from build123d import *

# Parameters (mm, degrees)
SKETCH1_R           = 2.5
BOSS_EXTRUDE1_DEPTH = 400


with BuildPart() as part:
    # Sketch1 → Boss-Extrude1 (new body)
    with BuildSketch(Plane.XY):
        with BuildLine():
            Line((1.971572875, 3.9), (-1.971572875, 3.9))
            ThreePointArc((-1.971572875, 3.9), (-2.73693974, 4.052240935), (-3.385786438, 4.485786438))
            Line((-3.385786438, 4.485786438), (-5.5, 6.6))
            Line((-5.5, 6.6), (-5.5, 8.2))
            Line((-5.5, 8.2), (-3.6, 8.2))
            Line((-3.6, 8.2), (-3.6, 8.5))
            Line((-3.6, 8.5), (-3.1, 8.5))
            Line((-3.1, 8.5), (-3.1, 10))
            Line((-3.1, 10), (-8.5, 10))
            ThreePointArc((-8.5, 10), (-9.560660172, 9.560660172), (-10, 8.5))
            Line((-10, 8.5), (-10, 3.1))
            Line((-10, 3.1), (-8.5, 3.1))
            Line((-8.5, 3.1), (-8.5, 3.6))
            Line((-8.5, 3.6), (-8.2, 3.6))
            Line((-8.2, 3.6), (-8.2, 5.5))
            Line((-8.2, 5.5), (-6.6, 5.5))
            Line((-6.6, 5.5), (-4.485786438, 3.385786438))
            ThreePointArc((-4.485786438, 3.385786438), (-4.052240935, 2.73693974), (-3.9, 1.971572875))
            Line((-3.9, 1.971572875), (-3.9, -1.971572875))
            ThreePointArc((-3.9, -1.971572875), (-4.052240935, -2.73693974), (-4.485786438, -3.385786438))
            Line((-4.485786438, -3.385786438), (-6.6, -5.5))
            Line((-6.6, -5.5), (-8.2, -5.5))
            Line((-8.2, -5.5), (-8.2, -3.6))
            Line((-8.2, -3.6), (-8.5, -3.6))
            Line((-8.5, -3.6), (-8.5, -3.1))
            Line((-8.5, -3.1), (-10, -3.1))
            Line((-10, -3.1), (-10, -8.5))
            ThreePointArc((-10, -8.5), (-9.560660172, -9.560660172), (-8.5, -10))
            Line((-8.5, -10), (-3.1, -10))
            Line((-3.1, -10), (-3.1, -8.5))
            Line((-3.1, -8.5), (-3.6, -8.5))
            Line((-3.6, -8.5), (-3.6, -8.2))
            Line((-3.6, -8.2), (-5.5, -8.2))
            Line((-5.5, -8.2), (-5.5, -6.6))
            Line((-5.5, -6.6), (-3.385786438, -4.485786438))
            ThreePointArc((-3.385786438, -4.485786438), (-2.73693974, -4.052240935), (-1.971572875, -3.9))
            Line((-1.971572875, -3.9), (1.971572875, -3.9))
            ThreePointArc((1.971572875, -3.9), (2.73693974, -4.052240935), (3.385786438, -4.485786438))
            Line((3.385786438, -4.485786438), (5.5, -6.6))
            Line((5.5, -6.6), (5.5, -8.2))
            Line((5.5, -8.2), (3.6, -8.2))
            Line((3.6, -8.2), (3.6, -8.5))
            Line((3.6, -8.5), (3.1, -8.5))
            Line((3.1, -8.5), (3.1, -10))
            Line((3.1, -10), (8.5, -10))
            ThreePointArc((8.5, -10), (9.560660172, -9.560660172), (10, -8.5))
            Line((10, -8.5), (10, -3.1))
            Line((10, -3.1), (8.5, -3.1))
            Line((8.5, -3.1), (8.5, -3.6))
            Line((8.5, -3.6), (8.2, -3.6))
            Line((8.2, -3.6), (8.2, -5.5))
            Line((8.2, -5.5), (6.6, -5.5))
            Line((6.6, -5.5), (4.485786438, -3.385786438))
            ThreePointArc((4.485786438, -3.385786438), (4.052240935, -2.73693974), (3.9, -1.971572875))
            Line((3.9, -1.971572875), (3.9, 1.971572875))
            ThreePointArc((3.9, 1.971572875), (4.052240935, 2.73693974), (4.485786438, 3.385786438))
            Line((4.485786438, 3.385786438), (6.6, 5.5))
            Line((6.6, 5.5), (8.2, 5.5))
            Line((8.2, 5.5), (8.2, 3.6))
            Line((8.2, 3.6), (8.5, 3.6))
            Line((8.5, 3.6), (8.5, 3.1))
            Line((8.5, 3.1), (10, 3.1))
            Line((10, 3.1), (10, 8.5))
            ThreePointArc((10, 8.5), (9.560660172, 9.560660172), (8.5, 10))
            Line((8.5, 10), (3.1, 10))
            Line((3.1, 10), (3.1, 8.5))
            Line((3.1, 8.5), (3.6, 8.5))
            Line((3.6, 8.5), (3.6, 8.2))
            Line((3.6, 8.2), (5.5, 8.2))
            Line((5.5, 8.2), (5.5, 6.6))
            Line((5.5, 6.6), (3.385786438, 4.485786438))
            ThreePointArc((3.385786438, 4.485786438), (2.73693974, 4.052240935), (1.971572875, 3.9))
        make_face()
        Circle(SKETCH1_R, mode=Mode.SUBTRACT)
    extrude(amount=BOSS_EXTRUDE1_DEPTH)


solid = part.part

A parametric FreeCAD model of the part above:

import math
import FreeCAD as App
import Part
import Sketcher

V = App.Vector

doc = App.newDocument("Part")
body = doc.addObject("PartDesign::Body", "Body")

# Sketch on XY plane
sketch1 = body.newObject("Sketcher::SketchObject", "Sketch")
sketch1.AttachmentSupport = (doc.getObject("XY_Plane"), [""])
sketch1.MapMode = "FlatFace"
sketch1.addGeometry(Part.LineSegment(V(1.971573, 3.9, 0), V(-1.971573, 3.9, 0)), False)
sketch1.addGeometry(Part.ArcOfCircle(Part.Circle(V(-1.971573, 5.9, 0), V(0, 0, 1), 2), math.radians(-135), math.radians(-90)), False)
sketch1.addGeometry(Part.LineSegment(V(-3.385786, 4.485786, 0), V(-5.5, 6.6, 0)), False)
sketch1.addGeometry(Part.LineSegment(V(-5.5, 6.6, 0), V(-5.5, 8.2, 0)), False)
sketch1.addGeometry(Part.LineSegment(V(-5.5, 8.2, 0), V(-3.6, 8.2, 0)), False)
sketch1.addGeometry(Part.LineSegment(V(-3.6, 8.2, 0), V(-3.6, 8.5, 0)), False)
sketch1.addGeometry(Part.LineSegment(V(-3.6, 8.5, 0), V(-3.1, 8.5, 0)), False)
sketch1.addGeometry(Part.LineSegment(V(-3.1, 8.5, 0), V(-3.1, 10, 0)), False)
sketch1.addGeometry(Part.LineSegment(V(-3.1, 10, 0), V(-8.5, 10, 0)), False)
sketch1.addGeometry(Part.ArcOfCircle(Part.Circle(V(-8.5, 8.5, 0), V(0, 0, 1), 1.5), math.radians(90), math.radians(180)), False)
sketch1.addGeometry(Part.LineSegment(V(-10, 8.5, 0), V(-10, 3.1, 0)), False)
sketch1.addGeometry(Part.LineSegment(V(-10, 3.1, 0), V(-8.5, 3.1, 0)), False)
sketch1.addGeometry(Part.LineSegment(V(-8.5, 3.1, 0), V(-8.5, 3.6, 0)), False)
sketch1.addGeometry(Part.LineSegment(V(-8.5, 3.6, 0), V(-8.2, 3.6, 0)), False)
sketch1.addGeometry(Part.LineSegment(V(-8.2, 3.6, 0), V(-8.2, 5.5, 0)), False)
sketch1.addGeometry(Part.LineSegment(V(-8.2, 5.5, 0), V(-6.6, 5.5, 0)), False)
sketch1.addGeometry(Part.LineSegment(V(-6.6, 5.5, 0), V(-4.485786, 3.385786, 0)), False)
sketch1.addGeometry(Part.ArcOfCircle(Part.Circle(V(-5.9, 1.971573, 0), V(0, 0, 1), 2), math.radians(0), math.radians(45)), False)
sketch1.addGeometry(Part.LineSegment(V(-3.9, 1.971573, 0), V(-3.9, -1.971573, 0)), False)
sketch1.addGeometry(Part.ArcOfCircle(Part.Circle(V(-5.9, -1.971573, 0), V(0, 0, 1), 2), math.radians(-45), math.radians(0)), False)
sketch1.addGeometry(Part.LineSegment(V(-4.485786, -3.385786, 0), V(-6.6, -5.5, 0)), False)
sketch1.addGeometry(Part.LineSegment(V(-6.6, -5.5, 0), V(-8.2, -5.5, 0)), False)
sketch1.addGeometry(Part.LineSegment(V(-8.2, -5.5, 0), V(-8.2, -3.6, 0)), False)
sketch1.addGeometry(Part.LineSegment(V(-8.2, -3.6, 0), V(-8.5, -3.6, 0)), False)
sketch1.addGeometry(Part.LineSegment(V(-8.5, -3.6, 0), V(-8.5, -3.1, 0)), False)
sketch1.addGeometry(Part.LineSegment(V(-8.5, -3.1, 0), V(-10, -3.1, 0)), False)
sketch1.addGeometry(Part.LineSegment(V(-10, -3.1, 0), V(-10, -8.5, 0)), False)
sketch1.addGeometry(Part.ArcOfCircle(Part.Circle(V(-8.5, -8.5, 0), V(0, 0, 1), 1.5), math.radians(180), math.radians(270)), False)
sketch1.addGeometry(Part.LineSegment(V(-8.5, -10, 0), V(-3.1, -10, 0)), False)
sketch1.addGeometry(Part.LineSegment(V(-3.1, -10, 0), V(-3.1, -8.5, 0)), False)
sketch1.addGeometry(Part.LineSegment(V(-3.1, -8.5, 0), V(-3.6, -8.5, 0)), False)
sketch1.addGeometry(Part.LineSegment(V(-3.6, -8.5, 0), V(-3.6, -8.2, 0)), False)
sketch1.addGeometry(Part.LineSegment(V(-3.6, -8.2, 0), V(-5.5, -8.2, 0)), False)
sketch1.addGeometry(Part.LineSegment(V(-5.5, -8.2, 0), V(-5.5, -6.6, 0)), False)
sketch1.addGeometry(Part.LineSegment(V(-5.5, -6.6, 0), V(-3.385786, -4.485786, 0)), False)
sketch1.addGeometry(Part.ArcOfCircle(Part.Circle(V(-1.971573, -5.9, 0), V(0, 0, 1), 2), math.radians(90), math.radians(135)), False)
sketch1.addGeometry(Part.LineSegment(V(-1.971573, -3.9, 0), V(1.971573, -3.9, 0)), False)
sketch1.addGeometry(Part.ArcOfCircle(Part.Circle(V(1.971573, -5.9, 0), V(0, 0, 1), 2), math.radians(45), math.radians(90)), False)
sketch1.addGeometry(Part.LineSegment(V(3.385786, -4.485786, 0), V(5.5, -6.6, 0)), False)
sketch1.addGeometry(Part.LineSegment(V(5.5, -6.6, 0), V(5.5, -8.2, 0)), False)
sketch1.addGeometry(Part.LineSegment(V(5.5, -8.2, 0), V(3.6, -8.2, 0)), False)
sketch1.addGeometry(Part.LineSegment(V(3.6, -8.2, 0), V(3.6, -8.5, 0)), False)
sketch1.addGeometry(Part.LineSegment(V(3.6, -8.5, 0), V(3.1, -8.5, 0)), False)
sketch1.addGeometry(Part.LineSegment(V(3.1, -8.5, 0), V(3.1, -10, 0)), False)
sketch1.addGeometry(Part.LineSegment(V(3.1, -10, 0), V(8.5, -10, 0)), False)
sketch1.addGeometry(Part.ArcOfCircle(Part.Circle(V(8.5, -8.5, 0), V(0, 0, 1), 1.5), math.radians(-90), math.radians(0)), False)
sketch1.addGeometry(Part.LineSegment(V(10, -8.5, 0), V(10, -3.1, 0)), False)
sketch1.addGeometry(Part.LineSegment(V(10, -3.1, 0), V(8.5, -3.1, 0)), False)
sketch1.addGeometry(Part.LineSegment(V(8.5, -3.1, 0), V(8.5, -3.6, 0)), False)
sketch1.addGeometry(Part.LineSegment(V(8.5, -3.6, 0), V(8.2, -3.6, 0)), False)
sketch1.addGeometry(Part.LineSegment(V(8.2, -3.6, 0), V(8.2, -5.5, 0)), False)
sketch1.addGeometry(Part.LineSegment(V(8.2, -5.5, 0), V(6.6, -5.5, 0)), False)
sketch1.addGeometry(Part.LineSegment(V(6.6, -5.5, 0), V(4.485786, -3.385786, 0)), False)
sketch1.addGeometry(Part.ArcOfCircle(Part.Circle(V(5.9, -1.971573, 0), V(0, 0, 1), 2), math.radians(180), math.radians(225)), False)
sketch1.addGeometry(Part.LineSegment(V(3.9, -1.971573, 0), V(3.9, 1.971573, 0)), False)
sketch1.addGeometry(Part.ArcOfCircle(Part.Circle(V(5.9, 1.971573, 0), V(0, 0, 1), 2), math.radians(135), math.radians(180)), False)
sketch1.addGeometry(Part.LineSegment(V(4.485786, 3.385786, 0), V(6.6, 5.5, 0)), False)
sketch1.addGeometry(Part.LineSegment(V(6.6, 5.5, 0), V(8.2, 5.5, 0)), False)
sketch1.addGeometry(Part.LineSegment(V(8.2, 5.5, 0), V(8.2, 3.6, 0)), False)
sketch1.addGeometry(Part.LineSegment(V(8.2, 3.6, 0), V(8.5, 3.6, 0)), False)
sketch1.addGeometry(Part.LineSegment(V(8.5, 3.6, 0), V(8.5, 3.1, 0)), False)
sketch1.addGeometry(Part.LineSegment(V(8.5, 3.1, 0), V(10, 3.1, 0)), False)
sketch1.addGeometry(Part.LineSegment(V(10, 3.1, 0), V(10, 8.5, 0)), False)
sketch1.addGeometry(Part.ArcOfCircle(Part.Circle(V(8.5, 8.5, 0), V(0, 0, 1), 1.5), math.radians(0), math.radians(90)), False)
sketch1.addGeometry(Part.LineSegment(V(8.5, 10, 0), V(3.1, 10, 0)), False)
sketch1.addGeometry(Part.LineSegment(V(3.1, 10, 0), V(3.1, 8.5, 0)), False)
sketch1.addGeometry(Part.LineSegment(V(3.1, 8.5, 0), V(3.6, 8.5, 0)), False)
sketch1.addGeometry(Part.LineSegment(V(3.6, 8.5, 0), V(3.6, 8.2, 0)), False)
sketch1.addGeometry(Part.LineSegment(V(3.6, 8.2, 0), V(5.5, 8.2, 0)), False)
sketch1.addGeometry(Part.LineSegment(V(5.5, 8.2, 0), V(5.5, 6.6, 0)), False)
sketch1.addGeometry(Part.LineSegment(V(5.5, 6.6, 0), V(3.385786, 4.485786, 0)), False)
sketch1.addGeometry(Part.ArcOfCircle(Part.Circle(V(1.971573, 5.9, 0), V(0, 0, 1), 2), math.radians(-90), math.radians(-45)), False)
sketch1.addGeometry(Part.Circle(V(0, 0, 0), V(0, 0, 1), 2.5), False)
sketch1.addConstraint(Sketcher.Constraint("Tangent", 0, 2, 1, 2))
sketch1.addConstraint(Sketcher.Constraint("Tangent", 1, 1, 2, 1))
sketch1.addConstraint(Sketcher.Constraint("Coincident", 2, 2, 3, 1))
sketch1.addConstraint(Sketcher.Constraint("Coincident", 3, 2, 4, 1))
sketch1.addConstraint(Sketcher.Constraint("Coincident", 4, 2, 5, 1))
sketch1.addConstraint(Sketcher.Constraint("Coincident", 5, 2, 6, 1))
sketch1.addConstraint(Sketcher.Constraint("Coincident", 6, 2, 7, 1))
sketch1.addConstraint(Sketcher.Constraint("Coincident", 7, 2, 8, 1))
sketch1.addConstraint(Sketcher.Constraint("Tangent", 8, 2, 9, 1))
sketch1.addConstraint(Sketcher.Constraint("Tangent", 9, 2, 10, 1))
sketch1.addConstraint(Sketcher.Constraint("Coincident", 10, 2, 11, 1))
sketch1.addConstraint(Sketcher.Constraint("Coincident", 11, 2, 12, 1))
sketch1.addConstraint(Sketcher.Constraint("Coincident", 12, 2, 13, 1))
sketch1.addConstraint(Sketcher.Constraint("Coincident", 13, 2, 14, 1))
sketch1.addConstraint(Sketcher.Constraint("Coincident", 14, 2, 15, 1))
sketch1.addConstraint(Sketcher.Constraint("Coincident", 15, 2, 16, 1))
sketch1.addConstraint(Sketcher.Constraint("Tangent", 16, 2, 17, 2))
sketch1.addConstraint(Sketcher.Constraint("Tangent", 17, 1, 18, 1))
sketch1.addConstraint(Sketcher.Constraint("Tangent", 18, 2, 19, 2))
sketch1.addConstraint(Sketcher.Constraint("Tangent", 19, 1, 20, 1))
sketch1.addConstraint(Sketcher.Constraint("Coincident", 20, 2, 21, 1))
sketch1.addConstraint(Sketcher.Constraint("Coincident", 21, 2, 22, 1))
sketch1.addConstraint(Sketcher.Constraint("Coincident", 22, 2, 23, 1))
sketch1.addConstraint(Sketcher.Constraint("Coincident", 23, 2, 24, 1))
sketch1.addConstraint(Sketcher.Constraint("Coincident", 24, 2, 25, 1))
sketch1.addConstraint(Sketcher.Constraint("Coincident", 25, 2, 26, 1))
sketch1.addConstraint(Sketcher.Constraint("Tangent", 26, 2, 27, 1))
sketch1.addConstraint(Sketcher.Constraint("Tangent", 27, 2, 28, 1))
sketch1.addConstraint(Sketcher.Constraint("Coincident", 28, 2, 29, 1))
sketch1.addConstraint(Sketcher.Constraint("Coincident", 29, 2, 30, 1))
sketch1.addConstraint(Sketcher.Constraint("Coincident", 30, 2, 31, 1))
sketch1.addConstraint(Sketcher.Constraint("Coincident", 31, 2, 32, 1))
sketch1.addConstraint(Sketcher.Constraint("Coincident", 32, 2, 33, 1))
sketch1.addConstraint(Sketcher.Constraint("Coincident", 33, 2, 34, 1))
sketch1.addConstraint(Sketcher.Constraint("Tangent", 34, 2, 35, 2))
sketch1.addConstraint(Sketcher.Constraint("Tangent", 35, 1, 36, 1))
sketch1.addConstraint(Sketcher.Constraint("Tangent", 36, 2, 37, 2))
sketch1.addConstraint(Sketcher.Constraint("Tangent", 37, 1, 38, 1))
sketch1.addConstraint(Sketcher.Constraint("Coincident", 38, 2, 39, 1))
sketch1.addConstraint(Sketcher.Constraint("Coincident", 39, 2, 40, 1))
sketch1.addConstraint(Sketcher.Constraint("Coincident", 40, 2, 41, 1))
sketch1.addConstraint(Sketcher.Constraint("Coincident", 41, 2, 42, 1))
sketch1.addConstraint(Sketcher.Constraint("Coincident", 42, 2, 43, 1))
sketch1.addConstraint(Sketcher.Constraint("Coincident", 43, 2, 44, 1))
sketch1.addConstraint(Sketcher.Constraint("Tangent", 44, 2, 45, 1))
sketch1.addConstraint(Sketcher.Constraint("Tangent", 45, 2, 46, 1))
sketch1.addConstraint(Sketcher.Constraint("Coincident", 46, 2, 47, 1))
sketch1.addConstraint(Sketcher.Constraint("Coincident", 47, 2, 48, 1))
sketch1.addConstraint(Sketcher.Constraint("Coincident", 48, 2, 49, 1))
sketch1.addConstraint(Sketcher.Constraint("Coincident", 49, 2, 50, 1))
sketch1.addConstraint(Sketcher.Constraint("Coincident", 50, 2, 51, 1))
sketch1.addConstraint(Sketcher.Constraint("Coincident", 51, 2, 52, 1))
sketch1.addConstraint(Sketcher.Constraint("Tangent", 52, 2, 53, 2))
sketch1.addConstraint(Sketcher.Constraint("Tangent", 53, 1, 54, 1))
sketch1.addConstraint(Sketcher.Constraint("Tangent", 54, 2, 55, 2))
sketch1.addConstraint(Sketcher.Constraint("Tangent", 55, 1, 56, 1))
sketch1.addConstraint(Sketcher.Constraint("Coincident", 56, 2, 57, 1))
sketch1.addConstraint(Sketcher.Constraint("Coincident", 57, 2, 58, 1))
sketch1.addConstraint(Sketcher.Constraint("Coincident", 58, 2, 59, 1))
sketch1.addConstraint(Sketcher.Constraint("Coincident", 59, 2, 60, 1))
sketch1.addConstraint(Sketcher.Constraint("Coincident", 60, 2, 61, 1))
sketch1.addConstraint(Sketcher.Constraint("Coincident", 61, 2, 62, 1))
sketch1.addConstraint(Sketcher.Constraint("Tangent", 62, 2, 63, 1))
sketch1.addConstraint(Sketcher.Constraint("Tangent", 63, 2, 64, 1))
sketch1.addConstraint(Sketcher.Constraint("Coincident", 64, 2, 65, 1))
sketch1.addConstraint(Sketcher.Constraint("Coincident", 65, 2, 66, 1))
sketch1.addConstraint(Sketcher.Constraint("Coincident", 66, 2, 67, 1))
sketch1.addConstraint(Sketcher.Constraint("Coincident", 67, 2, 68, 1))
sketch1.addConstraint(Sketcher.Constraint("Coincident", 68, 2, 69, 1))
sketch1.addConstraint(Sketcher.Constraint("Coincident", 69, 2, 70, 1))
sketch1.addConstraint(Sketcher.Constraint("Tangent", 70, 2, 71, 2))
sketch1.addConstraint(Sketcher.Constraint("Tangent", 71, 1, 0, 1))
sketch1.addConstraint(Sketcher.Constraint("Horizontal", 0))
sketch1.addConstraint(Sketcher.Constraint("Vertical", 3))
sketch1.addConstraint(Sketcher.Constraint("Horizontal", 4))
sketch1.addConstraint(Sketcher.Constraint("Vertical", 5))
sketch1.addConstraint(Sketcher.Constraint("Horizontal", 6))
sketch1.addConstraint(Sketcher.Constraint("Vertical", 7))
sketch1.addConstraint(Sketcher.Constraint("Horizontal", 8))
sketch1.addConstraint(Sketcher.Constraint("Vertical", 10))
sketch1.addConstraint(Sketcher.Constraint("Horizontal", 11))
sketch1.addConstraint(Sketcher.Constraint("Vertical", 12))
sketch1.addConstraint(Sketcher.Constraint("Horizontal", 13))
sketch1.addConstraint(Sketcher.Constraint("Vertical", 14))
sketch1.addConstraint(Sketcher.Constraint("Horizontal", 15))
sketch1.addConstraint(Sketcher.Constraint("Vertical", 18))
sketch1.addConstraint(Sketcher.Constraint("Horizontal", 21))
sketch1.addConstraint(Sketcher.Constraint("Vertical", 22))
sketch1.addConstraint(Sketcher.Constraint("Horizontal", 23))
sketch1.addConstraint(Sketcher.Constraint("Vertical", 24))
sketch1.addConstraint(Sketcher.Constraint("Horizontal", 25))
sketch1.addConstraint(Sketcher.Constraint("Vertical", 26))
sketch1.addConstraint(Sketcher.Constraint("Horizontal", 28))
sketch1.addConstraint(Sketcher.Constraint("Vertical", 29))
sketch1.addConstraint(Sketcher.Constraint("Horizontal", 30))
sketch1.addConstraint(Sketcher.Constraint("Vertical", 31))
sketch1.addConstraint(Sketcher.Constraint("Horizontal", 32))
sketch1.addConstraint(Sketcher.Constraint("Vertical", 33))
sketch1.addConstraint(Sketcher.Constraint("Horizontal", 36))
sketch1.addConstraint(Sketcher.Constraint("Vertical", 39))
sketch1.addConstraint(Sketcher.Constraint("Horizontal", 40))
sketch1.addConstraint(Sketcher.Constraint("Vertical", 41))
sketch1.addConstraint(Sketcher.Constraint("Horizontal", 42))
sketch1.addConstraint(Sketcher.Constraint("Vertical", 43))
sketch1.addConstraint(Sketcher.Constraint("Horizontal", 44))
sketch1.addConstraint(Sketcher.Constraint("Vertical", 46))
sketch1.addConstraint(Sketcher.Constraint("Horizontal", 47))
sketch1.addConstraint(Sketcher.Constraint("Vertical", 48))
sketch1.addConstraint(Sketcher.Constraint("Horizontal", 49))
sketch1.addConstraint(Sketcher.Constraint("Vertical", 50))
sketch1.addConstraint(Sketcher.Constraint("Horizontal", 51))
sketch1.addConstraint(Sketcher.Constraint("Vertical", 54))
sketch1.addConstraint(Sketcher.Constraint("Horizontal", 57))
sketch1.addConstraint(Sketcher.Constraint("Vertical", 58))
sketch1.addConstraint(Sketcher.Constraint("Horizontal", 59))
sketch1.addConstraint(Sketcher.Constraint("Vertical", 60))
sketch1.addConstraint(Sketcher.Constraint("Horizontal", 61))
sketch1.addConstraint(Sketcher.Constraint("Vertical", 62))
sketch1.addConstraint(Sketcher.Constraint("Horizontal", 64))
sketch1.addConstraint(Sketcher.Constraint("Vertical", 65))
sketch1.addConstraint(Sketcher.Constraint("Horizontal", 66))
sketch1.addConstraint(Sketcher.Constraint("Vertical", 67))
sketch1.addConstraint(Sketcher.Constraint("Horizontal", 68))
sketch1.addConstraint(Sketcher.Constraint("Vertical", 69))
sketch1.addConstraint(Sketcher.Constraint("Coincident", 72, 3, -1, 1))
sketch1.addConstraint(Sketcher.Constraint("Equal", 1, 17))
sketch1.addConstraint(Sketcher.Constraint("Equal", 17, 19))
sketch1.addConstraint(Sketcher.Constraint("Equal", 9, 27))
sketch1.addConstraint(Sketcher.Constraint("Equal", 19, 35))
sketch1.addConstraint(Sketcher.Constraint("Equal", 35, 37))
sketch1.addConstraint(Sketcher.Constraint("Equal", 27, 45))
sketch1.addConstraint(Sketcher.Constraint("Equal", 37, 53))
sketch1.addConstraint(Sketcher.Constraint("Equal", 53, 55))
sketch1.addConstraint(Sketcher.Constraint("Equal", 45, 63))
sketch1.addConstraint(Sketcher.Constraint("Equal", 55, 71))
sketch1.addConstraint(Sketcher.Constraint("Symmetric", 1, 3, 37, 3, -1, 1))
sketch1.addConstraint(Sketcher.Constraint("Symmetric", 9, 3, 45, 3, -1, 1))
sketch1.addConstraint(Sketcher.Constraint("Symmetric", 17, 3, 53, 3, -1, 1))
sketch1.addConstraint(Sketcher.Constraint("Symmetric", 27, 3, 63, 3, -1, 1))
sketch1.addConstraint(Sketcher.Constraint("Symmetric", 2, 2, 38, 2, -1, 1))
sketch1.addConstraint(Sketcher.Constraint("Symmetric", 4, 2, 40, 2, -1, 1))
sketch1.addConstraint(Sketcher.Constraint("Symmetric", 6, 2, 42, 2, -1, 1))
sketch1.addConstraint(Sketcher.Constraint("Symmetric", 11, 2, 47, 2, -1, 1))
sketch1.addConstraint(Sketcher.Constraint("Symmetric", 13, 2, 49, 2, -1, 1))
sketch1.addConstraint(Sketcher.Constraint("Symmetric", 15, 2, 51, 2, -1, 1))
sketch1.addConstraint(Sketcher.Constraint("Symmetric", 19, 1, 55, 1, -1, 1))
sketch1.addConstraint(Sketcher.Constraint("Symmetric", 21, 2, 57, 2, -1, 1))
sketch1.addConstraint(Sketcher.Constraint("Symmetric", 23, 2, 59, 2, -1, 1))
sketch1.addConstraint(Sketcher.Constraint("Symmetric", 29, 2, 65, 2, -1, 1))
sketch1.addConstraint(Sketcher.Constraint("Symmetric", 31, 2, 67, 2, -1, 1))
sketch1.addConstraint(Sketcher.Constraint("Symmetric", 33, 2, 69, 2, -1, 1))
sketch1.addConstraint(Sketcher.Constraint("Symmetric", 27, 3, 45, 3, -2))
sketch1.addConstraint(Sketcher.Constraint("Symmetric", 34, 2, 37, 1, -2))
sketch1.addConstraint(Sketcher.Constraint("Symmetric", 32, 2, 39, 2, -2))
sketch1.addConstraint(Sketcher.Constraint("Symmetric", 30, 2, 41, 2, -2))
sketch1.addConstraint(Sketcher.Constraint("Symmetric", 24, 2, 47, 2, -2))
sketch1.addConstraint(Sketcher.Constraint("Symmetric", 22, 2, 49, 2, -2))
sketch1.addConstraint(Sketcher.Constraint("Symmetric", 20, 2, 51, 2, -2))
sketch1.addConstraint(Sketcher.Constraint("Parallel", 2, 16))
sketch1.addConstraint(Sketcher.Constraint("Perpendicular", 16, 20))
sketch1.addConstraint(Sketcher.Constraint("Parallel", 20, 34))
sketch1.addConstraint(Sketcher.Constraint("Parallel", 56, 70))
sketch1.addConstraint(Sketcher.Constraint("Horizontal", 63, 3, 5, 2))
sketch1.addConstraint(Sketcher.Constraint("Horizontal", 11, 2, 60, 2))
sketch1.addConstraint(Sketcher.Constraint("Vertical", 8, 2, 11, 2))
sketch1.addConstraint(Sketcher.Constraint("Vertical", 7, 2, 28, 2))
sketch1.addConstraint(Sketcher.Constraint("Equal", 57, 3))
sketch1.addConstraint(Sketcher.Constraint("Equal", 59, 5))
sketch1.addConstraint(Sketcher.Constraint("Equal", 64, 10))
sketch1.addConstraint(Sketcher.Constraint("Equal", 66, 12))
sketch1.addConstraint(Sketcher.Constraint("Equal", 68, 14))
sketch1.addConstraint(Sketcher.Constraint("Equal", 36, 18))
sketch1.addConstraint(Sketcher.Constraint("Equal", 2, 16))
sketch1.addConstraint(Sketcher.Constraint("Diameter", 72, 5.0))
sketch1.addConstraint(Sketcher.Constraint("Radius", 1, 2.0))
sketch1.addConstraint(Sketcher.Constraint("Radius", 9, 1.5))
sketch1.addConstraint(Sketcher.Constraint("DistanceX", 4, 1, 4, 2, 1.9))
sketch1.addConstraint(Sketcher.Constraint("DistanceX", 6, 1, 6, 2, 0.5))
sketch1.addConstraint(Sketcher.Constraint("DistanceX", 8, 2, 8, 1, 5.4))
sketch1.addConstraint(Sketcher.Constraint("DistanceX", 13, 1, 13, 2, 0.3))
sketch1.addConstraint(Sketcher.Constraint("DistanceX", 15, 1, 15, 2, 1.6))
sketch1.addConstraint(Sketcher.Constraint("DistanceY", -1, 1, 7, 2, 10.0))
sketch1.addConstraint(Sketcher.Constraint("DistanceY", -1, 1, 1, 3, 5.9))
pad1 = body.newObject("PartDesign::Pad", "Pad")
pad1.Profile = sketch1
pad1.Length = 400

doc.recompute()
